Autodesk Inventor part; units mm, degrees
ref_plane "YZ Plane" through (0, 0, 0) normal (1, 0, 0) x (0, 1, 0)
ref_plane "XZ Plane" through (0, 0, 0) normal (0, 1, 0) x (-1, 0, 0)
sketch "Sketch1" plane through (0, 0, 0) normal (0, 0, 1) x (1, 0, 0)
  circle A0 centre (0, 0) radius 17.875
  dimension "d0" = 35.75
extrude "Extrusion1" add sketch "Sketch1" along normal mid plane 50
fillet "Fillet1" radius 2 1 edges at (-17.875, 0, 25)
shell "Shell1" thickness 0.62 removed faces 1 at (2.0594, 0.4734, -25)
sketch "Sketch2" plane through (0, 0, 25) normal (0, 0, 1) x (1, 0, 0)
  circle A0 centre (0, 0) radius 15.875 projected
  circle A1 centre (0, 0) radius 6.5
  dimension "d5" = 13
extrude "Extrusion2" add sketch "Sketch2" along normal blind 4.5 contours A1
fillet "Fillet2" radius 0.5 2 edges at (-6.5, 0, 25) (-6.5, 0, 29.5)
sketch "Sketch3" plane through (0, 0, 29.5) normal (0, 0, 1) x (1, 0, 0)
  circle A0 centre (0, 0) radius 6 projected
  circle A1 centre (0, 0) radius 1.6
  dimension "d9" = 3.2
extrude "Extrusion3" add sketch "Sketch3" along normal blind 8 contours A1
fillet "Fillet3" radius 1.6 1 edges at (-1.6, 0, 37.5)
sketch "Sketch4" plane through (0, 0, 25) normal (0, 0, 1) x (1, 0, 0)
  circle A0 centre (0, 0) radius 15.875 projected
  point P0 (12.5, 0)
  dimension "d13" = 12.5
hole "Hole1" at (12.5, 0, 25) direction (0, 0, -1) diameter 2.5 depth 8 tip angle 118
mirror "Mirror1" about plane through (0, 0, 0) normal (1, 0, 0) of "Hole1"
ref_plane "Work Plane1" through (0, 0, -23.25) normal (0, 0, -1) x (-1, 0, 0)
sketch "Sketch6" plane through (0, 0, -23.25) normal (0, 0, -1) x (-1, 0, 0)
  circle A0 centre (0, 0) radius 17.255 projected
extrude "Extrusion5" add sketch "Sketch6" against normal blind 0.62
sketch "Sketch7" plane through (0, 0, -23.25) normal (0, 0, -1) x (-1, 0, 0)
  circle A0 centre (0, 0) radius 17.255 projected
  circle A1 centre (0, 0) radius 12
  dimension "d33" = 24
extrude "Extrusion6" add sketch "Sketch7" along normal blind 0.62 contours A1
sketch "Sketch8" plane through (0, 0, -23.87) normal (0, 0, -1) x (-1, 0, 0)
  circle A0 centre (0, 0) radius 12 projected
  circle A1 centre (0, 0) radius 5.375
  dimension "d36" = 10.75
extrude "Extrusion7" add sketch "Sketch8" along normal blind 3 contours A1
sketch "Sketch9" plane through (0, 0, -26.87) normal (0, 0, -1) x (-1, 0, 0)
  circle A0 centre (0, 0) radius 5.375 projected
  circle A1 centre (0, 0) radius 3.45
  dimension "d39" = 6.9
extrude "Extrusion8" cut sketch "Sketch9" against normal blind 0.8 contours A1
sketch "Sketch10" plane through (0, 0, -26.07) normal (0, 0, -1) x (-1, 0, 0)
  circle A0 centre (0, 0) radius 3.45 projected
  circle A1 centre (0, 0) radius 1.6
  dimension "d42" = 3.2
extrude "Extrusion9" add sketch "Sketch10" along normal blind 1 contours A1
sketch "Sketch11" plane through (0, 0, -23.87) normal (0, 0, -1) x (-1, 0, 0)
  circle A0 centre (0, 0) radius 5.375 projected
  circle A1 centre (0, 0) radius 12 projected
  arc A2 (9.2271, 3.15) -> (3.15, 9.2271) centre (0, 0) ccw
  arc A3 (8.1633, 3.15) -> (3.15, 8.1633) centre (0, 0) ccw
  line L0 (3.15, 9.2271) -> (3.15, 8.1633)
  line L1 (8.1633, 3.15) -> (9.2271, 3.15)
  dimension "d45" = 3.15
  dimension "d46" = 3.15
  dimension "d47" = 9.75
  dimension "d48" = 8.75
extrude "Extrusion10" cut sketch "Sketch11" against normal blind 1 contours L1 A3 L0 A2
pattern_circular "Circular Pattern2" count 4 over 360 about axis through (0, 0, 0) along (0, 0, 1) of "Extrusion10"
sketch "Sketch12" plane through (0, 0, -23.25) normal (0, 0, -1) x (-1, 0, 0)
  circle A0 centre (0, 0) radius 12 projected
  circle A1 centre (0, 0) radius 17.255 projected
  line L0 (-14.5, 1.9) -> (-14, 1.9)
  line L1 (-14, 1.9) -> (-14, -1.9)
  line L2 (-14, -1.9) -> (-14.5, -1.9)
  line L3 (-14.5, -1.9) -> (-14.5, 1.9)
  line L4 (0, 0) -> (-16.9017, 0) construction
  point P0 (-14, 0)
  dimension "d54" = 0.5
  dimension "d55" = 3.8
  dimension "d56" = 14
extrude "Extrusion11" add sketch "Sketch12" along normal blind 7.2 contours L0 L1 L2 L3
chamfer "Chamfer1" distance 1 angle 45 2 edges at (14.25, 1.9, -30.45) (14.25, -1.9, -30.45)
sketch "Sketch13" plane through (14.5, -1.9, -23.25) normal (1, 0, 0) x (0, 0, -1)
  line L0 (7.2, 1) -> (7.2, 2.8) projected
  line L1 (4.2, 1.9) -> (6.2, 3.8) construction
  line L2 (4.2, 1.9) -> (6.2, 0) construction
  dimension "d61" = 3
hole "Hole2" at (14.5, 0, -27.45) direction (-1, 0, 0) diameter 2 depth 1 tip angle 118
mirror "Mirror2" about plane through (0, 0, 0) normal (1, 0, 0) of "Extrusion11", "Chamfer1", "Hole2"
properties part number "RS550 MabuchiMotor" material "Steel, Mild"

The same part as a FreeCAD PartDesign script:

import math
import FreeCAD as App
import Part
import Sketcher

V = App.Vector
Q = App.Units.Quantity


def edges_at(feature, points):
    """Names of the edges that pass closest to the given points."""
    edges = feature.Shape.Edges
    near = lambda p: min(range(len(edges)), key=lambda i: edges[i].distToShape(Part.Vertex(*p))[0])
    return sorted({f"Edge{near(p) + 1}" for p in points})


def faces_at(feature, points):
    """Names of the faces that lie closest to the given points."""
    faces = feature.Shape.Faces
    near = lambda p: min(range(len(faces)), key=lambda i: faces[i].distToShape(Part.Vertex(*p))[0])
    return sorted({f"Face{near(p) + 1}" for p in points})


def add_polygon(sketch, points):
    """Adds a closed chain of lines whose ends are joined by coincident constraints."""
    first, n = sketch.GeometryCount, len(points)
    for a, b in zip(points, points[1:] + points[:1]):
        sketch.addGeometry(Part.LineSegment(App.Vector(*a, 0), App.Vector(*b, 0)), False)
    for i in range(n):
        sketch.addConstraint(Sketcher.Constraint("Coincident", first + i, 2, first + (i + 1) % n, 1))

doc = App.newDocument("Part")
body = doc.addObject("PartDesign::Body", "Body")

# Sketch on XY plane
sketch1 = body.newObject("Sketcher::SketchObject", "Sketch")
sketch1.AttachmentSupport = (doc.getObject("XY_Plane"), [""])
sketch1.MapMode = "FlatFace"
sketch1.addGeometry(Part.Circle(V(0, 0, 0), V(0, 0, 1), 18), False)
sketch1.addConstraint([
    Sketcher.Constraint("Coincident", 0, 3, -1, 1),
    Sketcher.Constraint("Diameter", 0, Q("35.75 mm")),
])
pad1 = body.newObject("PartDesign::Pad", "Pad")
pad1.Profile = sketch1
pad1.Length = 50
pad1.Midplane = True
doc.recompute()

fillet = body.newObject("PartDesign::Fillet", "Fillet")
fillet.Base = (pad1, edges_at(pad1, [(-17.875, 0, 25)]))
fillet.Radius = 2
doc.recompute()

thickness = body.newObject("PartDesign::Thickness", "Thickness")
thickness.Base = (fillet, faces_at(fillet, [(2.059, 0.473, -25)]))
thickness.Value = 0.62
thickness.Reversed = True
thickness.Join = "Intersection"

# Sketch on XY plane
sketch2 = body.newObject("Sketcher::SketchObject", "Sketch001")
sketch2.AttachmentSupport = (doc.getObject("XY_Plane"), [""])
sketch2.MapMode = "FlatFace"
sketch2.AttachmentOffset = App.Placement(V(0, 0, 25), App.Rotation())
sketch2.addGeometry(Part.Circle(V(0, 0, 0), V(0, 0, 1), 6), False)
sketch2.addConstraint([
    Sketcher.Constraint("Coincident", 0, 3, -1, 1),
    Sketcher.Constraint("Diameter", 0, Q("13 mm")),
])
pad2 = body.newObject("PartDesign::Pad", "Pad001")
pad2.Profile = sketch2
pad2.Length = 4.5
doc.recompute()

fillet2 = body.newObject("PartDesign::Fillet", "Fillet001")
fillet2.Base = (pad2, edges_at(pad2, [(-6.5, 0, 25), (-6.5, 0, 29.5)]))
fillet2.Radius = 0.5

# Sketch on XY plane
sketch3 = body.newObject("Sketcher::SketchObject", "Sketch002")
sketch3.AttachmentSupport = (doc.getObject("XY_Plane"), [""])
sketch3.MapMode = "FlatFace"
sketch3.AttachmentOffset = App.Placement(V(0, 0, 29.5), App.Rotation())
sketch3.addGeometry(Part.Circle(V(0, 0, 0), V(0, 0, 1), 1.6), False)
sketch3.addConstraint([
    Sketcher.Constraint("Coincident", 0, 3, -1, 1),
    Sketcher.Constraint("Diameter", 0, Q("3.2 mm")),
])
pad3 = body.newObject("PartDesign::Pad", "Pad002")
pad3.Profile = sketch3
pad3.Length = 8
doc.recompute()

fillet3 = body.newObject("PartDesign::Fillet", "Fillet002")
fillet3.Base = (pad3, edges_at(pad3, [(-1.6, 0, 37.5)]))
fillet3.Radius = 1.6

# Sketch on XY plane
sketch4 = body.newObject("Sketcher::SketchObject", "Sketch003")
sketch4.AttachmentSupport = (doc.getObject("XY_Plane"), [""])
sketch4.MapMode = "FlatFace"
sketch4.AttachmentOffset = App.Placement(V(0, 0, 25), App.Rotation())
sketch4.addGeometry(Part.Circle(V(12.5, 0, 0), V(0, 0, 1), 1.2), False)
sketch4.addConstraint([
    Sketcher.Constraint("PointOnObject", 0, 3, -1),
    Sketcher.Constraint("Diameter", 0, Q("2.5 mm")),
    Sketcher.Constraint("DistanceX", -1, 1, 0, 3, Q("12.5 mm")),
])
doc.recompute()
hole = body.newObject("PartDesign::Hole", "Hole")
hole.Profile = sketch4
hole.ThreadType = "None"
hole.Diameter = 2.5
hole.DepthType = "Dimension"
hole.Depth = 8
hole.DrillPoint = "Angled"
hole.DrillPointAngle = 118
doc.recompute()

mirrored = body.newObject("PartDesign::Mirrored", "Mirrored")
mirrored.Originals = [hole]
mirrored.MirrorPlane = (doc.getObject("YZ_Plane"), [""])
body.Tip = mirrored

# Sketch on XY plane
sketch5 = body.newObject("Sketcher::SketchObject", "Sketch004")
sketch5.AttachmentSupport = (doc.getObject("XY_Plane"), [""])
sketch5.MapMode = "FlatFace"
sketch5.AttachmentOffset = App.Placement(V(0, 0, -23.25), App.Rotation())
sketch5.addGeometry(Part.Circle(V(0, 0, 0), V(0, 0, 1), 17), False)
sketch5.addConstraint([
    Sketcher.Constraint("Coincident", 0, 3, -1, 1),
    Sketcher.Constraint("Diameter", 0, Q("34.51 mm")),
])
pad4 = body.newObject("PartDesign::Pad", "Pad003")
pad4.Profile = sketch5
pad4.Length = 0.62

# Sketch on XY plane
sketch6 = body.newObject("Sketcher::SketchObject", "Sketch005")
sketch6.AttachmentSupport = (doc.getObject("XY_Plane"), [""])
sketch6.MapMode = "FlatFace"
sketch6.AttachmentOffset = App.Placement(V(0, 0, -23.25), App.Rotation())
sketch6.addGeometry(Part.Circle(V(0, 0, 0), V(0, 0, 1), 12), False)
sketch6.addConstraint([
    Sketcher.Constraint("Coincident", 0, 3, -1, 1),
    Sketcher.Constraint("Diameter", 0, Q("24 mm")),
])
pad5 = body.newObject("PartDesign::Pad", "Pad004")
pad5.Profile = sketch6
pad5.Length = 0.62
pad5.Reversed = True

# Sketch on XY plane
sketch7 = body.newObject("Sketcher::SketchObject", "Sketch006")
sketch7.AttachmentSupport = (doc.getObject("XY_Plane"), [""])
sketch7.MapMode = "FlatFace"
sketch7.AttachmentOffset = App.Placement(V(0, 0, -23.87), App.Rotation())
sketch7.addGeometry(Part.Circle(V(0, 0, 0), V(0, 0, 1), 5), False)
sketch7.addConstraint([
    Sketcher.Constraint("Coincident", 0, 3, -1, 1),
    Sketcher.Constraint("Diameter", 0, Q("10.75 mm")),
])
pad6 = body.newObject("PartDesign::Pad", "Pad005")
pad6.Profile = sketch7
pad6.Length = 3
pad6.Reversed = True

# Sketch on XY plane
sketch8 = body.newObject("Sketcher::SketchObject", "Sketch007")
sketch8.AttachmentSupport = (doc.getObject("XY_Plane"), [""])
sketch8.MapMode = "FlatFace"
sketch8.AttachmentOffset = App.Placement(V(0, 0, -26.87), App.Rotation())
sketch8.addGeometry(Part.Circle(V(0, 0, 0), V(0, 0, 1), 3.5), False)
sketch8.addConstraint([
    Sketcher.Constraint("Coincident", 0, 3, -1, 1),
    Sketcher.Constraint("Diameter", 0, Q("6.9 mm")),
])
pocket1 = body.newObject("PartDesign::Pocket", "Pocket")
pocket1.Profile = sketch8
pocket1.Length = 0.8
pocket1.Reversed = True

# Sketch on XY plane
sketch9 = body.newObject("Sketcher::SketchObject", "Sketch008")
sketch9.AttachmentSupport = (doc.getObject("XY_Plane"), [""])
sketch9.MapMode = "FlatFace"
sketch9.AttachmentOffset = App.Placement(V(0, 0, -26.07), App.Rotation())
sketch9.addGeometry(Part.Circle(V(0, 0, 0), V(0, 0, 1), 1.6), False)
sketch9.addConstraint([
    Sketcher.Constraint("Coincident", 0, 3, -1, 1),
    Sketcher.Constraint("Diameter", 0, Q("3.2 mm")),
])
pad7 = body.newObject("PartDesign::Pad", "Pad006")
pad7.Profile = sketch9
pad7.Length = 1
pad7.Reversed = True

# Sketch on XY plane
sketch10 = body.newObject("Sketcher::SketchObject", "Sketch009")
sketch10.AttachmentSupport = (doc.getObject("XY_Plane"), [""])
sketch10.MapMode = "FlatFace"
sketch10.AttachmentOffset = App.Placement(V(0, 0, -23.87), App.Rotation())
sketch10.addGeometry([
    Part.LineSegment(V(-8.2, 3.1, 0), V(-9.2, 3.1, 0)),
    Part.ArcOfCircle(Part.Circle(V(0, 0, 0), V(0, 0, 1), 9.7), math.radians(109), math.radians(161)),
    Part.LineSegment(V(-3.1, 9.2, 0), V(-3.1, 8.2, 0)),
    Part.ArcOfCircle(Part.Circle(V(0, 0, 0), V(0, 0, 1), 8.7), math.radians(111), math.radians(159)),
], False)
sketch10.addConstraint([
    Sketcher.Constraint("Coincident", 0, 2, 1, 2),
    Sketcher.Constraint("Coincident", 1, 1, 2, 1),
    Sketcher.Constraint("Coincident", 2, 2, 3, 1),
    Sketcher.Constraint("Coincident", 3, 2, 0, 1),
    Sketcher.Constraint("Horizontal", 0),
    Sketcher.Constraint("Vertical", 2),
    Sketcher.Constraint("Coincident", 1, 3, -1, 1),
    Sketcher.Constraint("Coincident", 3, 3, -1, 1),
    Sketcher.Constraint("Equal", 0, 2),
    Sketcher.Constraint("Radius", 1, Q("9.75 mm")),
    Sketcher.Constraint("Radius", 3, Q("8.75 mm")),
    Sketcher.Constraint("DistanceY", -1, 1, 0, 2, Q("3.15 mm")),
])
pocket2 = body.newObject("PartDesign::Pocket", "Pocket001")
pocket2.Profile = sketch10
pocket2.Length = 1
pocket2.Reversed = True
doc.recompute()

polarpattern = body.newObject("PartDesign::PolarPattern", "PolarPattern")
polarpattern.Originals = [pocket2]
polarpattern.Axis = (doc.getObject("Z_Axis"), [""])
polarpattern.Angle = 360
polarpattern.Occurrences = 4
body.Tip = polarpattern

# Sketch on XY plane
sketch11 = body.newObject("Sketcher::SketchObject", "Sketch010")
sketch11.AttachmentSupport = (doc.getObject("XY_Plane"), [""])
sketch11.MapMode = "FlatFace"
sketch11.AttachmentOffset = App.Placement(V(0, 0, -23.25), App.Rotation())
add_polygon(sketch11, [(14, 1.9), (14.5, 1.9), (14.5, -1.9), (14, -1.9)])  # lines 0-3
sketch11.addConstraint([
    Sketcher.Constraint("Horizontal", 0),
    Sketcher.Constraint("Vertical", 1),
    Sketcher.Constraint("Horizontal", 2),
    Sketcher.Constraint("Vertical", 3),
    Sketcher.Constraint("DistanceX", 0, 1, 0, 2, Q("0.5 mm")),
    Sketcher.Constraint("DistanceY", 1, 2, 1, 1, Q("3.8 mm")),
    Sketcher.Constraint("DistanceX", -1, 1, 2, 2, Q("14 mm")),
    Sketcher.Constraint("DistanceY", -1, 1, 0, 2, Q("1.9 mm")),
])
pad8 = body.newObject("PartDesign::Pad", "Pad007")
pad8.Profile = sketch11
pad8.Length = 7.2
pad8.Reversed = True
doc.recompute()

chamfer = body.newObject("PartDesign::Chamfer", "Chamfer")
chamfer.Base = (pad8, edges_at(pad8, [(14.25, 1.9, -30.45), (14.25, -1.9, -30.45)]))
chamfer.Size = 1

# Sketch on YZ plane
sketch12 = body.newObject("Sketcher::SketchObject", "Sketch011")
sketch12.AttachmentSupport = (doc.getObject("YZ_Plane"), [""])
sketch12.MapMode = "FlatFace"
sketch12.AttachmentOffset = App.Placement(V(0, 0, 14.5), App.Rotation())
sketch12.addGeometry(Part.Circle(V(0, -27.4, 0), V(0, 0, 1), 1), False)
sketch12.addConstraint([
    Sketcher.Constraint("PointOnObject", 0, 3, -2),
    Sketcher.Constraint("Diameter", 0, Q("2 mm")),
    Sketcher.Constraint("DistanceY", 0, 3, -1, 1, Q("27.45 mm")),
])
doc.recompute()
hole2 = body.newObject("PartDesign::Hole", "Hole001")
hole2.Profile = sketch12
hole2.ThreadType = "None"
hole2.Diameter = 2
hole2.DepthType = "Dimension"
hole2.Depth = 1
hole2.DrillPoint = "Angled"
hole2.DrillPointAngle = 118
doc.recompute()

mirrored2 = body.newObject("PartDesign::Mirrored", "Mirrored001")
mirrored2.Originals = [pad8, chamfer, hole2]
mirrored2.MirrorPlane = (doc.getObject("YZ_Plane"), [""])
body.Tip = mirrored2

doc.recompute()
